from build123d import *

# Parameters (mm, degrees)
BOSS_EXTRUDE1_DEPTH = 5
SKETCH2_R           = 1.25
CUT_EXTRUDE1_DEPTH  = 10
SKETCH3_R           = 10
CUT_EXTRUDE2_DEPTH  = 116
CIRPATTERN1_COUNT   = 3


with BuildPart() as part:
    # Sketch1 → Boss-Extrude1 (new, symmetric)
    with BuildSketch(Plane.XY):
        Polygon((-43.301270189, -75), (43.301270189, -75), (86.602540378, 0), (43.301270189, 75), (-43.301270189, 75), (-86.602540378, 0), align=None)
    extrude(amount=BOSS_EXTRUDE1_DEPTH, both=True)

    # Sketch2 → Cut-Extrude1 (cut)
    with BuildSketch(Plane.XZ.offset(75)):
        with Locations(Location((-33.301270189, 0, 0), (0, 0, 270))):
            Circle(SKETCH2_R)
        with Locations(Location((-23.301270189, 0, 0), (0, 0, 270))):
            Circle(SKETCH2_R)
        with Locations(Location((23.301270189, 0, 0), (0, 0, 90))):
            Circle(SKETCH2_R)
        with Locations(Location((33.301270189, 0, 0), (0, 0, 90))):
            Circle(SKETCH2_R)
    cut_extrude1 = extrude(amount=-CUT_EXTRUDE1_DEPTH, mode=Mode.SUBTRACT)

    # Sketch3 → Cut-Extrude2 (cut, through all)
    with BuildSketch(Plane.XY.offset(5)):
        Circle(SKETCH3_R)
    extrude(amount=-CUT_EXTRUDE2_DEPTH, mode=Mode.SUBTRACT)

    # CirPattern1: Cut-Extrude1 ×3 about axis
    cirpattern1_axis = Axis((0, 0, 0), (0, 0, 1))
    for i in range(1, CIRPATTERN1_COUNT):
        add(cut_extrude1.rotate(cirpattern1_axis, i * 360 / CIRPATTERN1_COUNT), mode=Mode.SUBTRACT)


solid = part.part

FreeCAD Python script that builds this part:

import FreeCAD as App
import Part
import Sketcher
Q = App.Units.Quantity

doc = App.newDocument("Part")
body = doc.addObject("PartDesign::Body", "Body")

sketch1 = doc.addObject("Sketcher::SketchObject", "Sketch")
body.addObject(sketch1)
sketch1.AttachmentSupport = (doc.XY_Plane, [""])
sketch1.MapMode = "FlatFace"
sketch1.addGeometry(Part.LineSegment(App.Vector(-43, -75, 0), App.Vector(43, -75, 0)), False)
sketch1.addGeometry(Part.LineSegment(App.Vector(43, -75, 0), App.Vector(87, 0, 0)), False)
sketch1.addGeometry(Part.LineSegment(App.Vector(87, 0, 0), App.Vector(43, 75, 0)), False)
sketch1.addGeometry(Part.LineSegment(App.Vector(43, 75, 0), App.Vector(-43, 75, 0)), False)
sketch1.addGeometry(Part.LineSegment(App.Vector(-43, 75, 0), App.Vector(-87, 0, 0)), False)
sketch1.addGeometry(Part.LineSegment(App.Vector(-87, 0, 0), App.Vector(-43, -75, 0)), False)
sketch1.addConstraint(Sketcher.Constraint("Coincident", 0, 2, 1, 1))
sketch1.addConstraint(Sketcher.Constraint("Coincident", 1, 2, 2, 1))
sketch1.addConstraint(Sketcher.Constraint("Coincident", 2, 2, 3, 1))
sketch1.addConstraint(Sketcher.Constraint("Coincident", 3, 2, 4, 1))
sketch1.addConstraint(Sketcher.Constraint("Coincident", 4, 2, 5, 1))
sketch1.addConstraint(Sketcher.Constraint("Coincident", 5, 2, 0, 1))
sketch1.addConstraint(Sketcher.Constraint("Horizontal", 0))
sketch1.addConstraint(Sketcher.Constraint("Horizontal", 3))
sketch1.addConstraint(Sketcher.Constraint("Symmetric", 0, 2, 3, 2, -1, 1))
sketch1.addConstraint(Sketcher.Constraint("Symmetric", 1, 2, 4, 2, -1, 1))
sketch1.addConstraint(Sketcher.Constraint("PointOnObject", 1, 2, -1))
sketch1.addConstraint(Sketcher.Constraint("Parallel", 2, 5))
sketch1.addConstraint(Sketcher.Constraint("Vertical", 0, 2, 2, 2))
sketch1.addConstraint(Sketcher.Constraint("Angle", 1, Q("60 deg")))
sketch1.addConstraint(Sketcher.Constraint("DistanceY", 0, 2, -1, 1, Q("75 mm")))
sketch1.addConstraint(Sketcher.Constraint("DistanceX", 0, 1, 0, 2, Q("86.60254 mm")))
pad1 = doc.addObject("PartDesign::Pad", "Pad")
body.addObject(pad1)
pad1.Profile = sketch1
pad1.Length = 10
pad1.Midplane = True

sketch2 = doc.addObject("Sketcher::SketchObject", "Sketch001")
body.addObject(sketch2)
sketch2.AttachmentSupport = (doc.XZ_Plane, [""])
sketch2.MapMode = "FlatFace"
sketch2.AttachmentOffset = App.Placement(App.Vector(0, 0, 75), App.Rotation())
sketch2.addGeometry(Part.Circle(App.Vector(-33.3, 0, 0), App.Vector(0, 0, 1), 1.2), False)
sketch2.addGeometry(Part.Circle(App.Vector(-23.3, 0, 0), App.Vector(0, 0, 1), 1.2), False)
sketch2.addGeometry(Part.Circle(App.Vector(23.3, 0, 0), App.Vector(0, 0, 1), 1.2), False)
sketch2.addGeometry(Part.Circle(App.Vector(33.3, 0, 0), App.Vector(0, 0, 1), 1.2), False)
sketch2.addConstraint(Sketcher.Constraint("Equal", 0, 1))
sketch2.addConstraint(Sketcher.Constraint("Equal", 1, 2))
sketch2.addConstraint(Sketcher.Constraint("Equal", 2, 3))
sketch2.addConstraint(Sketcher.Constraint("Symmetric", 1, 3, 2, 3, -1, 1))
sketch2.addConstraint(Sketcher.Constraint("Symmetric", 0, 3, 3, 3, -1, 1))
sketch2.addConstraint(Sketcher.Constraint("PointOnObject", 0, 3, -1))
sketch2.addConstraint(Sketcher.Constraint("PointOnObject", 1, 3, -1))
sketch2.addConstraint(Sketcher.Constraint("Diameter", 0, Q("2.5 mm")))
sketch2.addConstraint(Sketcher.Constraint("DistanceX", 0, 3, 1, 3, Q("10 mm")))
sketch2.addConstraint(Sketcher.Constraint("DistanceX", 0, 3, -1, 1, Q("33.30127 mm")))
pocket1 = doc.addObject("PartDesign::Pocket", "Pocket")
body.addObject(pocket1)
pocket1.Profile = sketch2
pocket1.Length = 10

sketch3 = doc.addObject("Sketcher::SketchObject", "Sketch002")
body.addObject(sketch3)
sketch3.AttachmentSupport = (doc.XY_Plane, [""])
sketch3.MapMode = "FlatFace"
sketch3.AttachmentOffset = App.Placement(App.Vector(0, 0, 5), App.Rotation())
sketch3.addGeometry(Part.Circle(App.Vector(0, 0, 0), App.Vector(0, 0, 1), 10), False)
sketch3.addConstraint(Sketcher.Constraint("Coincident", 0, 3, -1, 1))
sketch3.addConstraint(Sketcher.Constraint("Diameter", 0, Q("20 mm")))
pocket2 = doc.addObject("PartDesign::Pocket", "Pocket001")
body.addObject(pocket2)
pocket2.Profile = sketch3
pocket2.Type = "ThroughAll"
doc.recompute()

polarpattern = doc.addObject("PartDesign::PolarPattern", "PolarPattern")
body.addObject(polarpattern)
polarpattern.Originals = [pocket1]
polarpattern.Axis = (doc.Z_Axis, [""])
polarpattern.Angle = 360
polarpattern.Occurrences = 3
body.Tip = polarpattern

doc.recompute()
